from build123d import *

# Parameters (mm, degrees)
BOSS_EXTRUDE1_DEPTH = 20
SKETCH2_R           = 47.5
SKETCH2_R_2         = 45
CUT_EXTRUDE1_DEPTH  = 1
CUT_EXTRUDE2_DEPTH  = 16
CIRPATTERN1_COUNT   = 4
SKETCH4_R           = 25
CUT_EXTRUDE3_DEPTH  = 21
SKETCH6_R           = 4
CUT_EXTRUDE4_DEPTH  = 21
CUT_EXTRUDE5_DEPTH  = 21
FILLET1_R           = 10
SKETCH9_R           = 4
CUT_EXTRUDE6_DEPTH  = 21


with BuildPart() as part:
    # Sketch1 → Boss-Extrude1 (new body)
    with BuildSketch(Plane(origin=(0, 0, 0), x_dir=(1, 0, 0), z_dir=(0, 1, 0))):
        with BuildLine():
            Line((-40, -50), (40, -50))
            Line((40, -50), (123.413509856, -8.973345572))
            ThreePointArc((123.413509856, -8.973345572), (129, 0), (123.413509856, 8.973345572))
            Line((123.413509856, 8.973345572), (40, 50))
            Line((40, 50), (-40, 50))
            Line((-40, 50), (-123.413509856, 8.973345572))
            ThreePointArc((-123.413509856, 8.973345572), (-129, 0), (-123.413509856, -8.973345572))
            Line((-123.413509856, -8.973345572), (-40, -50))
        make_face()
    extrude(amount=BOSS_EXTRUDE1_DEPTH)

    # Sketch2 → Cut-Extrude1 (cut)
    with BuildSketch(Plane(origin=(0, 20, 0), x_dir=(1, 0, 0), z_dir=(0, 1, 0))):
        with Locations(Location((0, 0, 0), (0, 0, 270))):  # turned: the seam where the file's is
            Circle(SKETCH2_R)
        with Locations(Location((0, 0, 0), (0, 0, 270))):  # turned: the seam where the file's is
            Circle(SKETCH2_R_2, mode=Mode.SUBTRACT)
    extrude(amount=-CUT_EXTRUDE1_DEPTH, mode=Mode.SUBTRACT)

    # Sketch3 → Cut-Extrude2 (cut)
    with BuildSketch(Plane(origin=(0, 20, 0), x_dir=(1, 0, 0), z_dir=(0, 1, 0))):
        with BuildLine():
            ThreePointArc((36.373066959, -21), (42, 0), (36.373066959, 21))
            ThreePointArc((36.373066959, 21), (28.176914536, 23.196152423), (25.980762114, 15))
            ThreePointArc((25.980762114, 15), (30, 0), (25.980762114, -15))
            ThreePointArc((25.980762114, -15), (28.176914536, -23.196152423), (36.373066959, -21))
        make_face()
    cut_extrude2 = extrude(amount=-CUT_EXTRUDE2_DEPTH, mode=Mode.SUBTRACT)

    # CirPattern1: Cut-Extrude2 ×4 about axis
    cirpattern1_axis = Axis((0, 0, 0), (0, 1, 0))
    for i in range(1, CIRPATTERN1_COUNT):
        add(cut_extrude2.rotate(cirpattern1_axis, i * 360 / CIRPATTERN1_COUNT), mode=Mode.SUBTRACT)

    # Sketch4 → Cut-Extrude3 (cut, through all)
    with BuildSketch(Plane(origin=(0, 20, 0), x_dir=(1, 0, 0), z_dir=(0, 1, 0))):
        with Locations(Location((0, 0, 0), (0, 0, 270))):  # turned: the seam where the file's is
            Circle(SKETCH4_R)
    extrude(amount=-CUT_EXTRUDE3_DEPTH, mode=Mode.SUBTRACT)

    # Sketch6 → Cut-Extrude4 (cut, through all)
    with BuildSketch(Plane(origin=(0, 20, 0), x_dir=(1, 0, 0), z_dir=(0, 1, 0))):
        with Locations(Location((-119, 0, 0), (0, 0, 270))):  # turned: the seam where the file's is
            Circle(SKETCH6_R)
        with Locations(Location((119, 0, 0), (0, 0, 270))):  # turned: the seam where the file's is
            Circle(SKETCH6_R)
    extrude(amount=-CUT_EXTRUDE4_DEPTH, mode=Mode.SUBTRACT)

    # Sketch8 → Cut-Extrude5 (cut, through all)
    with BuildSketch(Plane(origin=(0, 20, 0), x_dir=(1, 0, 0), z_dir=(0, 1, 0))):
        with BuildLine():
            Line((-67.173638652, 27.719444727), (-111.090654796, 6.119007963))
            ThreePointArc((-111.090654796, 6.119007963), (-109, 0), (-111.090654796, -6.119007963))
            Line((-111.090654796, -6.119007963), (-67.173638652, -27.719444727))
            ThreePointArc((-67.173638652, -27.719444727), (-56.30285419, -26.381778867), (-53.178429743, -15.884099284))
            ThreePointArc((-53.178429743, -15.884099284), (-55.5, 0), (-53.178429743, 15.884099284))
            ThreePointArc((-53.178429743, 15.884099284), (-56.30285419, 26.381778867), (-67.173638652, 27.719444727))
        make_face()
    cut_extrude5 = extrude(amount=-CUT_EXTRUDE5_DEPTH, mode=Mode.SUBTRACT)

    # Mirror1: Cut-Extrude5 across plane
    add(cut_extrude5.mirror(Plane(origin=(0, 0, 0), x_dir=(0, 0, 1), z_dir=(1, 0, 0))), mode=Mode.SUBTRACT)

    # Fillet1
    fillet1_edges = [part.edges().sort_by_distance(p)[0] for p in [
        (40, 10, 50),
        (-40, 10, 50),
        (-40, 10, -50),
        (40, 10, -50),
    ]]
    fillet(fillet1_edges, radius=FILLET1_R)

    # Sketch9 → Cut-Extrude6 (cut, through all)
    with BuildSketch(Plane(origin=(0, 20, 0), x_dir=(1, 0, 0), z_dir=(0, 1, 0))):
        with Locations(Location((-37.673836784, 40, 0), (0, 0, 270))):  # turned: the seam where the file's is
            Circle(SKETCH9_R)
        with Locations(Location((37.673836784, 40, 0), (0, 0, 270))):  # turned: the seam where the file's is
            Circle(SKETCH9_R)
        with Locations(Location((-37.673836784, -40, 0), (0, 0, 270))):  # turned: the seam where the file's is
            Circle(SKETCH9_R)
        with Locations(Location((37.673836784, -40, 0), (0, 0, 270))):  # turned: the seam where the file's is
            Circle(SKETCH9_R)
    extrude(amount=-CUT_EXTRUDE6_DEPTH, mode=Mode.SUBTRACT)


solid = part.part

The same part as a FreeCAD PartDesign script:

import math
import FreeCAD as App
import Part
import Sketcher


def edges_at(feature, points):
    """Names of the edges that pass closest to the given points."""
    edges = feature.Shape.Edges
    near = lambda p: min(range(len(edges)), key=lambda i: edges[i].distToShape(Part.Vertex(*p))[0])
    return sorted({f"Edge{near(p) + 1}" for p in points})

doc = App.newDocument("Part")
body = doc.addObject("PartDesign::Body", "Body")

# Sketch on XZ plane
sketch1 = body.newObject("Sketcher::SketchObject", "Sketch")
sketch1.AttachmentSupport = (doc.getObject("XZ_Plane"), [""])
sketch1.MapMode = "FlatFace"
sketch1.addGeometry(Part.LineSegment(App.Vector(-40, 50, 0), App.Vector(40, 50, 0)), False)
sketch1.addGeometry(Part.LineSegment(App.Vector(40, 50, 0), App.Vector(123, 9, 0)), False)
sketch1.addGeometry(Part.ArcOfCircle(Part.Circle(App.Vector(119, 0, 0), App.Vector(0, 0, 1), 10), math.radians(-64), math.radians(64)), False)
sketch1.addGeometry(Part.LineSegment(App.Vector(123, -9, 0), App.Vector(40, -50, 0)), False)
sketch1.addGeometry(Part.LineSegment(App.Vector(40, -50, 0), App.Vector(-40, -50, 0)), False)
sketch1.addGeometry(Part.LineSegment(App.Vector(-40, -50, 0), App.Vector(-123, -9, 0)), False)
sketch1.addGeometry(Part.ArcOfCircle(Part.Circle(App.Vector(-119, 0, 0), App.Vector(0, 0, 1), 10), math.radians(116), math.radians(244)), False)
sketch1.addGeometry(Part.LineSegment(App.Vector(-123, 9, 0), App.Vector(-40, 50, 0)), False)
sketch1.addConstraint(Sketcher.Constraint("Coincident", 0, 2, 1, 1))
sketch1.addConstraint(Sketcher.Constraint("Tangent", 1, 2, 2, 2))
sketch1.addConstraint(Sketcher.Constraint("Tangent", 2, 1, 3, 1))
sketch1.addConstraint(Sketcher.Constraint("Coincident", 3, 2, 4, 1))
sketch1.addConstraint(Sketcher.Constraint("Coincident", 4, 2, 5, 1))
sketch1.addConstraint(Sketcher.Constraint("Tangent", 5, 2, 6, 2))
sketch1.addConstraint(Sketcher.Constraint("Tangent", 6, 1, 7, 1))
sketch1.addConstraint(Sketcher.Constraint("Coincident", 7, 2, 0, 1))
sketch1.addConstraint(Sketcher.Constraint("Horizontal", 0))
sketch1.addConstraint(Sketcher.Constraint("Horizontal", 4))
sketch1.addConstraint(Sketcher.Constraint("Equal", 2, 6))
sketch1.addConstraint(Sketcher.Constraint("Symmetric", 2, 3, 6, 3, -1, 1))
sketch1.addConstraint(Sketcher.Constraint("Symmetric", 0, 2, 4, 2, -1, 1))
sketch1.addConstraint(Sketcher.Constraint("Symmetric", 2, 1, 5, 2, -2))
sketch1.addConstraint(Sketcher.Constraint("Parallel", 3, 7))
sketch1.addConstraint(Sketcher.Constraint("Radius", 2, 10.0))
sketch1.addConstraint(Sketcher.Constraint("DistanceX", 0, 1, 0, 2, 80.0))
sketch1.addConstraint(Sketcher.Constraint("DistanceX", -1, 1, 2, 3, 119.0))
sketch1.addConstraint(Sketcher.Constraint("DistanceY", -1, 1, 0, 2, 50.0))
pad1 = body.newObject("PartDesign::Pad", "Pad")
pad1.Profile = sketch1
pad1.Length = 20
pad1.Reversed = True

# Sketch on XZ plane
sketch2 = body.newObject("Sketcher::SketchObject", "Sketch001")
sketch2.AttachmentSupport = (doc.getObject("XZ_Plane"), [""])
sketch2.MapMode = "FlatFace"
sketch2.AttachmentOffset = App.Placement(App.Vector(0, 0, -20), App.Rotation())
sketch2.addGeometry(Part.Circle(App.Vector(0, 0, 0), App.Vector(0, 0, 1), 48), False)
sketch2.addGeometry(Part.Circle(App.Vector(0, 0, 0), App.Vector(0, 0, 1), 45), False)
sketch2.addConstraint(Sketcher.Constraint("Coincident", 0, 3, -1, 1))
sketch2.addConstraint(Sketcher.Constraint("Coincident", 1, 3, -1, 1))
sketch2.addConstraint(Sketcher.Constraint("Diameter", 0, 95.0))
sketch2.addConstraint(Sketcher.Constraint("Diameter", 1, 90.0))
pocket1 = body.newObject("PartDesign::Pocket", "Pocket")
pocket1.Profile = sketch2
pocket1.Length = 1
pocket1.Reversed = True

# Sketch on XZ plane
sketch3 = body.newObject("Sketcher::SketchObject", "Sketch002")
sketch3.AttachmentSupport = (doc.getObject("XZ_Plane"), [""])
sketch3.MapMode = "FlatFace"
sketch3.AttachmentOffset = App.Placement(App.Vector(0, 0, -20), App.Rotation())
sketch3.addGeometry(Part.ArcOfCircle(Part.Circle(App.Vector(0, 0, 0), App.Vector(0, 0, 1), 42), math.radians(-30), math.radians(30)), False)
sketch3.addGeometry(Part.ArcOfCircle(Part.Circle(App.Vector(31, -18, 0), App.Vector(0, 0, 1), 6), math.radians(150), math.radians(330)), False)
sketch3.addGeometry(Part.ArcOfCircle(Part.Circle(App.Vector(0, 0, 0), App.Vector(0, 0, 1), 30), math.radians(-30), math.radians(30)), False)
sketch3.addGeometry(Part.ArcOfCircle(Part.Circle(App.Vector(31, 18, 0), App.Vector(0, 0, 1), 6), math.radians(30), math.radians(210)), False)
sketch3.addConstraint(Sketcher.Constraint("Tangent", 0, 1, 1, 2))
sketch3.addConstraint(Sketcher.Constraint("Tangent", 1, 1, 2, 1))
sketch3.addConstraint(Sketcher.Constraint("Tangent", 2, 2, 3, 2))
sketch3.addConstraint(Sketcher.Constraint("Tangent", 3, 1, 0, 2))
sketch3.addConstraint(Sketcher.Constraint("Coincident", 0, 3, -1, 1))
sketch3.addConstraint(Sketcher.Constraint("Coincident", 2, 3, -1, 1))
sketch3.addConstraint(Sketcher.Constraint("Vertical", 1, 3, 3, 3))
sketch3.addConstraint(Sketcher.Constraint("Radius", 0, 42.0))
sketch3.addConstraint(Sketcher.Constraint("Radius", 1, 6.0))
sketch3.addConstraint(Sketcher.Constraint("DistanceY", 1, 3, -1, 1, 18.0))
pocket2 = body.newObject("PartDesign::Pocket", "Pocket001")
pocket2.Profile = sketch3
pocket2.Length = 16
pocket2.Reversed = True
doc.recompute()

polarpattern = body.newObject("PartDesign::PolarPattern", "PolarPattern")
polarpattern.Originals = [pocket2]
polarpattern.Axis = (doc.getObject("Y_Axis"), [""])
polarpattern.Angle = 360
polarpattern.Occurrences = 4
body.Tip = polarpattern

# Sketch on XZ plane
sketch4 = body.newObject("Sketcher::SketchObject", "Sketch003")
sketch4.AttachmentSupport = (doc.getObject("XZ_Plane"), [""])
sketch4.MapMode = "FlatFace"
sketch4.AttachmentOffset = App.Placement(App.Vector(0, 0, -20), App.Rotation())
sketch4.addGeometry(Part.Circle(App.Vector(0, 0, 0), App.Vector(0, 0, 1), 25), False)
sketch4.addConstraint(Sketcher.Constraint("Coincident", 0, 3, -1, 1))
sketch4.addConstraint(Sketcher.Constraint("Diameter", 0, 50.0))
pocket3 = body.newObject("PartDesign::Pocket", "Pocket002")
pocket3.Profile = sketch4
pocket3.Type = "ThroughAll"
pocket3.Reversed = True

# Sketch on XZ plane
sketch5 = body.newObject("Sketcher::SketchObject", "Sketch004")
sketch5.AttachmentSupport = (doc.getObject("XZ_Plane"), [""])
sketch5.MapMode = "FlatFace"
sketch5.AttachmentOffset = App.Placement(App.Vector(0, 0, -20), App.Rotation())
sketch5.addGeometry(Part.Circle(App.Vector(-119, 0, 0), App.Vector(0, 0, 1), 4), False)
sketch5.addGeometry(Part.Circle(App.Vector(119, 0, 0), App.Vector(0, 0, 1), 4), False)
sketch5.addConstraint(Sketcher.Constraint("Equal", 0, 1))
sketch5.addConstraint(Sketcher.Constraint("Symmetric", 0, 3, 1, 3, -1, 1))
sketch5.addConstraint(Sketcher.Constraint("PointOnObject", 0, 3, -1))
sketch5.addConstraint(Sketcher.Constraint("Diameter", 0, 8.0))
sketch5.addConstraint(Sketcher.Constraint("DistanceX", 0, 3, -1, 1, 119.0))
pocket4 = body.newObject("PartDesign::Pocket", "Pocket003")
pocket4.Profile = sketch5
pocket4.Type = "ThroughAll"
pocket4.Reversed = True

# Sketch on XZ plane
sketch6 = body.newObject("Sketcher::SketchObject", "Sketch005")
sketch6.AttachmentSupport = (doc.getObject("XZ_Plane"), [""])
sketch6.MapMode = "FlatFace"
sketch6.AttachmentOffset = App.Placement(App.Vector(0, 0, -20), App.Rotation())
sketch6.addGeometry(Part.LineSegment(App.Vector(-67, -28, 0), App.Vector(-111, -6, 0)), False)
sketch6.addGeometry(Part.ArcOfCircle(Part.Circle(App.Vector(-119, 0, 0), App.Vector(0, 0, 1), 10), math.radians(-38), math.radians(38)), False)
sketch6.addGeometry(Part.LineSegment(App.Vector(-111, 6, 0), App.Vector(-67, 28, 0)), False)
sketch6.addGeometry(Part.ArcOfCircle(Part.Circle(App.Vector(-63, 19, 0), App.Vector(0, 0, 1), 10), math.radians(-17), math.radians(116)), False)
sketch6.addGeometry(Part.ArcOfCircle(Part.Circle(App.Vector(0, 0, 0), App.Vector(0, 0, 1), 55), math.radians(163), math.radians(197)), False)
sketch6.addGeometry(Part.ArcOfCircle(Part.Circle(App.Vector(-63, -19, 0), App.Vector(0, 0, 1), 10), math.radians(-116), math.radians(17)), False)
sketch6.addConstraint(Sketcher.Constraint("Coincident", 0, 2, 1, 1))
sketch6.addConstraint(Sketcher.Constraint("Coincident", 1, 2, 2, 1))
sketch6.addConstraint(Sketcher.Constraint("Tangent", 2, 2, 3, 2))
sketch6.addConstraint(Sketcher.Constraint("Tangent", 3, 1, 4, 1))
sketch6.addConstraint(Sketcher.Constraint("Tangent", 4, 2, 5, 2))
sketch6.addConstraint(Sketcher.Constraint("Tangent", 5, 1, 0, 1))
sketch6.addConstraint(Sketcher.Constraint("Coincident", 4, 3, -1, 1))
sketch6.addConstraint(Sketcher.Constraint("Equal", 1, 3))
sketch6.addConstraint(Sketcher.Constraint("Equal", 3, 5))
sketch6.addConstraint(Sketcher.Constraint("Symmetric", 0, 2, 1, 2, -1))
sketch6.addConstraint(Sketcher.Constraint("Vertical", 3, 3, 5, 3))
sketch6.addConstraint(Sketcher.Constraint("Radius", 1, 10.0))
sketch6.addConstraint(Sketcher.Constraint("Radius", 4, 55.5))
sketch6.addConstraint(Sketcher.Constraint("DistanceX", 1, 3, -1, 1, 119.0))
sketch6.addConstraint(Sketcher.Constraint("DistanceY", 3, 1, 3, 3, 2.862))
sketch6.addConstraint(Sketcher.Constraint("Distance", 0, 48.94163))
pocket5 = body.newObject("PartDesign::Pocket", "Pocket004")
pocket5.Profile = sketch6
pocket5.Type = "ThroughAll"
pocket5.Reversed = True
doc.recompute()

mirrored = body.newObject("PartDesign::Mirrored", "Mirrored")
mirrored.Originals = [pocket5]
mirrored.MirrorPlane = (doc.getObject("YZ_Plane"), [""])
body.Tip = mirrored
doc.recompute()

fillet = body.newObject("PartDesign::Fillet", "Fillet")
fillet.Base = (mirrored, edges_at(mirrored, [
    (40, 10, 50),
    (-40, 10, 50),
    (-40, 10, -50),
    (40, 10, -50),
]))
fillet.Radius = 10

# Sketch on XZ plane
sketch7 = body.newObject("Sketcher::SketchObject", "Sketch006")
sketch7.AttachmentSupport = (doc.getObject("XZ_Plane"), [""])
sketch7.MapMode = "FlatFace"
sketch7.AttachmentOffset = App.Placement(App.Vector(0, 0, -20), App.Rotation())
sketch7.addGeometry(Part.Circle(App.Vector(-37.7, -40, 0), App.Vector(0, 0, 1), 4), False)
sketch7.addGeometry(Part.Circle(App.Vector(37.7, -40, 0), App.Vector(0, 0, 1), 4), False)
sketch7.addGeometry(Part.Circle(App.Vector(-37.7, 40, 0), App.Vector(0, 0, 1), 4), False)
sketch7.addGeometry(Part.Circle(App.Vector(37.7, 40, 0), App.Vector(0, 0, 1), 4), False)
sketch7.addConstraint(Sketcher.Constraint("Equal", 0, 1))
sketch7.addConstraint(Sketcher.Constraint("Equal", 1, 2))
sketch7.addConstraint(Sketcher.Constraint("Equal", 2, 3))
sketch7.addConstraint(Sketcher.Constraint("Symmetric", 1, 3, 2, 3, -1, 1))
sketch7.addConstraint(Sketcher.Constraint("Symmetric", 0, 3, 3, 3, -1, 1))
sketch7.addConstraint(Sketcher.Constraint("Symmetric", 0, 3, 1, 3, -2))
sketch7.addConstraint(Sketcher.Constraint("Diameter", 0, 8.0))
sketch7.addConstraint(Sketcher.Constraint("DistanceY", 0, 3, -1, 1, 40.0))
sketch7.addConstraint(Sketcher.Constraint("DistanceX", 0, 3, -1, 1, 37.673837))
pocket6 = body.newObject("PartDesign::Pocket", "Pocket005")
pocket6.Profile = sketch7
pocket6.Type = "ThroughAll"
pocket6.Reversed = True

doc.recompute()
